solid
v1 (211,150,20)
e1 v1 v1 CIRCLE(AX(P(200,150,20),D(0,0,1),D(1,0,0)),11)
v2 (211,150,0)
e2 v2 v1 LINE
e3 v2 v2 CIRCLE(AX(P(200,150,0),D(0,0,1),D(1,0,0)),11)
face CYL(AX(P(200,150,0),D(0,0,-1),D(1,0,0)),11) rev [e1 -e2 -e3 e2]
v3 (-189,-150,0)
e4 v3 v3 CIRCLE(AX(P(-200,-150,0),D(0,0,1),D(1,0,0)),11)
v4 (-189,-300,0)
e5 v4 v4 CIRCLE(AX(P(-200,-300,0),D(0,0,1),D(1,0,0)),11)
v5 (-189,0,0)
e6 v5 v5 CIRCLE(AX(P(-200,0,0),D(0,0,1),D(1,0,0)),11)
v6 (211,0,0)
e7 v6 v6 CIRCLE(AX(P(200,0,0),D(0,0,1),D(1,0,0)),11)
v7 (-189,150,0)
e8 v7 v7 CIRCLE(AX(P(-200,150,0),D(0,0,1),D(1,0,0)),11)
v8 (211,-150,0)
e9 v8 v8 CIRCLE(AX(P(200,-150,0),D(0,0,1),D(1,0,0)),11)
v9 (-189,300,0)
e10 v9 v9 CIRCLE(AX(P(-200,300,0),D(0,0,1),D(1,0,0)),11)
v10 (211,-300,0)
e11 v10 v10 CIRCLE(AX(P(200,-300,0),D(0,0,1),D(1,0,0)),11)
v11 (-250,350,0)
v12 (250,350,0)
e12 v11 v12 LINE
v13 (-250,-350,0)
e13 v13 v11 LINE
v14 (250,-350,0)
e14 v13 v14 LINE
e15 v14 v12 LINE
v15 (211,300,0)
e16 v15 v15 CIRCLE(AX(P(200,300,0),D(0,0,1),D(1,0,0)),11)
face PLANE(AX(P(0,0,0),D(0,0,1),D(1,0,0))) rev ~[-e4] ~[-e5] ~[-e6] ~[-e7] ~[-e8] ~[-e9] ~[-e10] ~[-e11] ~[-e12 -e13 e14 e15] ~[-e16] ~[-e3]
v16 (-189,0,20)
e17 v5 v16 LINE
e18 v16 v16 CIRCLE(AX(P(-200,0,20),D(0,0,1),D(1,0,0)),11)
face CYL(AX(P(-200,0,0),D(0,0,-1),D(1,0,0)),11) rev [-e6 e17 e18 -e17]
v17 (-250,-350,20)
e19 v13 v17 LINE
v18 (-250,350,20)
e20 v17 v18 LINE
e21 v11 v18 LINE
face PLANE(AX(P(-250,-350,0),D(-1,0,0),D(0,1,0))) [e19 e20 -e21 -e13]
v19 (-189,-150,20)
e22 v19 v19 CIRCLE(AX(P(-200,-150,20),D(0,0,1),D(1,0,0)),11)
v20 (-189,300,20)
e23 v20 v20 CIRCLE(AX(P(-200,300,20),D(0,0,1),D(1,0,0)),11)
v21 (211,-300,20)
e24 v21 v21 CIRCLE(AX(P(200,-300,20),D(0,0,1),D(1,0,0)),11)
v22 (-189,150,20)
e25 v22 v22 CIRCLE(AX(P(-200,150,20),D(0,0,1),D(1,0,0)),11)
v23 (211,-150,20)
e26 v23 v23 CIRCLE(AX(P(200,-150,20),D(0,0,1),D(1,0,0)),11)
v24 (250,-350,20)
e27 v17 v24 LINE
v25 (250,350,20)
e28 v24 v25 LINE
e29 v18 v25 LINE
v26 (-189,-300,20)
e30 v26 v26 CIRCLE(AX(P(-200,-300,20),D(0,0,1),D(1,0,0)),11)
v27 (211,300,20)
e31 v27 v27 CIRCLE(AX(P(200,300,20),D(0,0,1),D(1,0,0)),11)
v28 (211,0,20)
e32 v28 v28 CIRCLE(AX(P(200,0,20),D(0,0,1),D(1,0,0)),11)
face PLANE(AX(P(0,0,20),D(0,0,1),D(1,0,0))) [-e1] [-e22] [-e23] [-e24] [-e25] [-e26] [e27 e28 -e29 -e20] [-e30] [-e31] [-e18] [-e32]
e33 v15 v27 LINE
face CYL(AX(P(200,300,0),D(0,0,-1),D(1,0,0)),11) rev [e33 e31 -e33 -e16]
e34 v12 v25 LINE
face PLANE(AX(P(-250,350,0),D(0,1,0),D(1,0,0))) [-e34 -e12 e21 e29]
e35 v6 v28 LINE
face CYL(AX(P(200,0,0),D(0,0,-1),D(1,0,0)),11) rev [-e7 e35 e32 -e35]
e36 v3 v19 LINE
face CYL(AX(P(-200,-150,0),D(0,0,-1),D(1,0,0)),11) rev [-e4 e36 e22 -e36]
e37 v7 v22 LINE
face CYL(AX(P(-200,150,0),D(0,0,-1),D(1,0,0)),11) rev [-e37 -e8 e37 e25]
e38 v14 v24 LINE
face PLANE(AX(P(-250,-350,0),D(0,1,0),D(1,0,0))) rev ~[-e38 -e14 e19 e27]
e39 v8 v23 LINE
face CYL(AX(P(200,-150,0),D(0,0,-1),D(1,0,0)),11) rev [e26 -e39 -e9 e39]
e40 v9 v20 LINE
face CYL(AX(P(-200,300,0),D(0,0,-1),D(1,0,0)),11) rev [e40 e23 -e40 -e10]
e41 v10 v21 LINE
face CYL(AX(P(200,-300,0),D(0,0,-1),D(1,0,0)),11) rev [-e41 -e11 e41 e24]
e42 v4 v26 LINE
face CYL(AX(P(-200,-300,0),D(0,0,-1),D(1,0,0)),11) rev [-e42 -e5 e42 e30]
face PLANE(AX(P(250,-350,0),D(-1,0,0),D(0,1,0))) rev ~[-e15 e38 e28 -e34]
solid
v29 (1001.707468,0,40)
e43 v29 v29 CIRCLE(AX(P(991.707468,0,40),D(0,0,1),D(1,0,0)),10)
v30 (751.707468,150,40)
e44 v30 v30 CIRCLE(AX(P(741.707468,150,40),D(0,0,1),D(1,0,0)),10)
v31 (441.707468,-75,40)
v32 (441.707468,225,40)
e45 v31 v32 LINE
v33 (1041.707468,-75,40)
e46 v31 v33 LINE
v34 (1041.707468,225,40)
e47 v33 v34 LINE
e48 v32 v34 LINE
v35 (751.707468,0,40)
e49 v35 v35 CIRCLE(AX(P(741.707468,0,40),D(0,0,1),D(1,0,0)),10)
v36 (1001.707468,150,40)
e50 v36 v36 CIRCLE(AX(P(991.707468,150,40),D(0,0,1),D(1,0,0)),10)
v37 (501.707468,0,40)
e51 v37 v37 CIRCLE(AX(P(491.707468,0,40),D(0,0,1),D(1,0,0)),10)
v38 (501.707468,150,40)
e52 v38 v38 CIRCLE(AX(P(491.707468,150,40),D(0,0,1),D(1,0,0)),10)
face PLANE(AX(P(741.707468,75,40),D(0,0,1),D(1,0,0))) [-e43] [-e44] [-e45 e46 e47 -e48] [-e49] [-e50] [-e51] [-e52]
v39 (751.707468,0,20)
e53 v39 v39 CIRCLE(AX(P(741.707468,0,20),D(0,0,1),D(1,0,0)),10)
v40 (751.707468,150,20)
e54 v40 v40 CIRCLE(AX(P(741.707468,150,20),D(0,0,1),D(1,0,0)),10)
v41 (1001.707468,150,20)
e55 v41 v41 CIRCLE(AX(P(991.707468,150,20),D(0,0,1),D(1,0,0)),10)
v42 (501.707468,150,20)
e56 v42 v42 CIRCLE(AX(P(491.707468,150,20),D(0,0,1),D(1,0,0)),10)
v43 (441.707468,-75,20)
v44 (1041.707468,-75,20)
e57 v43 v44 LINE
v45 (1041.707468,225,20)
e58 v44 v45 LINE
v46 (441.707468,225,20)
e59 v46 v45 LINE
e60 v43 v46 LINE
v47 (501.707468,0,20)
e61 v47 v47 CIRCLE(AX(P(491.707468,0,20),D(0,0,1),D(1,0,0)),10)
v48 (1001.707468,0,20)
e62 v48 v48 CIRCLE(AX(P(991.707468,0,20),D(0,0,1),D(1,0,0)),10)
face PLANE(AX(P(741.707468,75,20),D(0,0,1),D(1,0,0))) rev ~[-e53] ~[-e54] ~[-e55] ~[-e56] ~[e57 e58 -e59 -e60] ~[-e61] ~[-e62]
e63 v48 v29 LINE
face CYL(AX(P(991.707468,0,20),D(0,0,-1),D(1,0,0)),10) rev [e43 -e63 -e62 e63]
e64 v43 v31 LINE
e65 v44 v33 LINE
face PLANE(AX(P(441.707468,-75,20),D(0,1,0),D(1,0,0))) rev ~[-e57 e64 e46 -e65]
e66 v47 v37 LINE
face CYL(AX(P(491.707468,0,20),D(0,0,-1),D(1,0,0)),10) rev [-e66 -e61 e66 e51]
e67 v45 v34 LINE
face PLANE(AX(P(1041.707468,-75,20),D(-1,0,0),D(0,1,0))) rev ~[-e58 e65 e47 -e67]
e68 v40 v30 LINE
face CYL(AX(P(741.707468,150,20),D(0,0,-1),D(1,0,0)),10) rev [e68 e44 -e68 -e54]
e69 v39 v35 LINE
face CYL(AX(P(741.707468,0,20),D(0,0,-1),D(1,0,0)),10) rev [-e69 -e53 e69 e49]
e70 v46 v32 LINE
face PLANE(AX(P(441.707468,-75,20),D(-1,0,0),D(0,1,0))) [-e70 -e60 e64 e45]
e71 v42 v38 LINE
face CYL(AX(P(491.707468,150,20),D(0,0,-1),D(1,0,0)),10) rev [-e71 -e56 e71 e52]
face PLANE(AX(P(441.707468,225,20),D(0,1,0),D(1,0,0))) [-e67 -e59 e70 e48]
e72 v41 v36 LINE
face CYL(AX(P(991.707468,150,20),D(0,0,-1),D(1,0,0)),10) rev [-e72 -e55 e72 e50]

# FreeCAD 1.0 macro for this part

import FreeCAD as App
import Part
import Sketcher

V = App.Vector

doc = App.newDocument("Part")
params = doc.addObject("Spreadsheet::Sheet", "Params")
for row, (alias, value) in enumerate([
    ("sketch1_diameter", "22 mm"),
    ("sketch1_width", "500 mm"),
    ("sketch1_height", "700 mm"),
    ("pad1_length", "20 mm"),
    ("sketch2_diameter", "20 mm"),
    ("sketch2_width", "600 mm"),
    ("sketch2_height", "300 mm"),
    ("pad2_length", "20 mm"),
], start=1):
    params.set(f"A{row}", alias)
    params.set(f"B{row}", "=" + value)
    params.setAlias(f"B{row}", alias)

body = doc.addObject("PartDesign::Body", "Body")

sketch1 = doc.addObject("Sketcher::SketchObject", "Sketch")
body.addObject(sketch1)
sketch1.AttachmentSupport = (doc.XY_Plane, [""])
sketch1.MapMode = "FlatFace"
sketch1.addGeometry([
    Part.LineSegment(V(-250, 350, 0), V(-250, -350, 0)),
    Part.LineSegment(V(-250, -350, 0), V(250, -350, 0)),
    Part.LineSegment(V(250, -350, 0), V(250, 350, 0)),
    Part.LineSegment(V(250, 350, 0), V(-250, 350, 0)),
    Part.Circle(V(-200, -300, 0), V(0, 0, 1), 11),
    Part.Circle(V(-200, -150, 0), V(0, 0, 1), 11),
    Part.Circle(V(200, -300, 0), V(0, 0, 1), 11),
    Part.Circle(V(200, -150, 0), V(0, 0, 1), 11),
    Part.Circle(V(-200, 0, 0), V(0, 0, 1), 11),
    Part.Circle(V(-200, 150, 0), V(0, 0, 1), 11),
    Part.Circle(V(-200, 300, 0), V(0, 0, 1), 11),
    Part.Circle(V(200, 0, 0), V(0, 0, 1), 11),
    Part.Circle(V(200, 150, 0), V(0, 0, 1), 11),
    Part.Circle(V(200, 300, 0), V(0, 0, 1), 11),
], False)
sketch1.addConstraint([
    Sketcher.Constraint("Coincident", 0, 2, 1, 1),
    Sketcher.Constraint("Coincident", 1, 2, 2, 1),
    Sketcher.Constraint("Coincident", 2, 2, 3, 1),
    Sketcher.Constraint("Coincident", 3, 2, 0, 1),
    Sketcher.Constraint("Vertical", 0),
    Sketcher.Constraint("Horizontal", 1),
    Sketcher.Constraint("Vertical", 2),
    Sketcher.Constraint("Horizontal", 3),
    Sketcher.Constraint("Equal", 4, 5),
    Sketcher.Constraint("Equal", 5, 6),
    Sketcher.Constraint("Equal", 6, 7),
    Sketcher.Constraint("Equal", 7, 8),
    Sketcher.Constraint("Equal", 8, 9),
    Sketcher.Constraint("Equal", 9, 10),
    Sketcher.Constraint("Equal", 10, 11),
    Sketcher.Constraint("Equal", 11, 12),
    Sketcher.Constraint("Equal", 12, 13),
    Sketcher.Constraint("Symmetric", 7, 3, 9, 3, -1, 1),
    Sketcher.Constraint("Symmetric", 6, 3, 10, 3, -1, 1),
    Sketcher.Constraint("Symmetric", 8, 3, 11, 3, -1, 1),
    Sketcher.Constraint("Symmetric", 5, 3, 12, 3, -1, 1),
    Sketcher.Constraint("Symmetric", 4, 3, 13, 3, -1, 1),
    Sketcher.Constraint("Symmetric", 0, 2, 2, 2, -1, 1),
    Sketcher.Constraint("Symmetric", 4, 3, 6, 3, -2),
    Sketcher.Constraint("Symmetric", 5, 3, 7, 3, -2),
    Sketcher.Constraint("PointOnObject", 8, 3, -1),
    Sketcher.Constraint("Vertical", 4, 3, 5, 3),
    Sketcher.Constraint("Vertical", 5, 3, 8, 3),
    Sketcher.Constraint("Diameter", 4, 22.0),
    Sketcher.Constraint("DistanceX", 1, 1, 1, 2, 500.0),
    Sketcher.Constraint("DistanceY", 0, 2, 0, 1, 700.0),
    Sketcher.Constraint("DistanceX", 4, 3, -1, 1, 200.0),
    Sketcher.Constraint("DistanceY", 4, 3, -1, 1, 300.0),
    Sketcher.Constraint("DistanceY", 5, 3, -1, 1, 150.0),
])
sketch1.setExpression("Constraints[28]", "Params.sketch1_diameter")
sketch1.setExpression("Constraints[29]", "Params.sketch1_width")
sketch1.setExpression("Constraints[30]", "Params.sketch1_height")
pad1 = doc.addObject("PartDesign::Pad", "Pad")
body.addObject(pad1)
pad1.Profile = sketch1
pad1.setExpression("Length", "Params.pad1_length")
body2 = doc.addObject("PartDesign::Body", "Body001")

sketch2 = doc.addObject("Sketcher::SketchObject", "Sketch001")
body2.addObject(sketch2)
sketch2.AttachmentSupport = (doc.getObject("XY_Plane001"), [""])
sketch2.MapMode = "FlatFace"
sketch2.AttachmentOffset = App.Placement(V(0, 0, 20), App.Rotation())
sketch2.addGeometry([
    Part.LineSegment(V(442, 225, 0), V(442, -75, 0)),
    Part.LineSegment(V(442, -75, 0), V(1042, -75, 0)),
    Part.LineSegment(V(1042, -75, 0), V(1042, 225, 0)),
    Part.LineSegment(V(1042, 225, 0), V(442, 225, 0)),
    Part.Circle(V(492, 0, 0), V(0, 0, 1), 10),
    Part.Circle(V(742, 0, 0), V(0, 0, 1), 10),
    Part.Circle(V(992, 0, 0), V(0, 0, 1), 10),
    Part.Circle(V(492, 150, 0), V(0, 0, 1), 10),
    Part.Circle(V(742, 150, 0), V(0, 0, 1), 10),
    Part.Circle(V(992, 150, 0), V(0, 0, 1), 10),
], False)
sketch2.addConstraint([
    Sketcher.Constraint("Coincident", 0, 2, 1, 1),
    Sketcher.Constraint("Coincident", 1, 2, 2, 1),
    Sketcher.Constraint("Coincident", 2, 2, 3, 1),
    Sketcher.Constraint("Coincident", 3, 2, 0, 1),
    Sketcher.Constraint("Vertical", 0),
    Sketcher.Constraint("Horizontal", 1),
    Sketcher.Constraint("Vertical", 2),
    Sketcher.Constraint("Horizontal", 3),
    Sketcher.Constraint("Equal", 4, 5),
    Sketcher.Constraint("Equal", 5, 6),
    Sketcher.Constraint("Equal", 6, 7),
    Sketcher.Constraint("Equal", 7, 8),
    Sketcher.Constraint("Equal", 8, 9),
    Sketcher.Constraint("PointOnObject", 4, 3, -1),
    Sketcher.Constraint("PointOnObject", 5, 3, -1),
    Sketcher.Constraint("PointOnObject", 6, 3, -1),
    Sketcher.Constraint("Horizontal", 7, 3, 8, 3),
    Sketcher.Constraint("Horizontal", 8, 3, 9, 3),
    Sketcher.Constraint("Vertical", 4, 3, 7, 3),
    Sketcher.Constraint("Vertical", 5, 3, 8, 3),
    Sketcher.Constraint("Vertical", 6, 3, 9, 3),
    Sketcher.Constraint("Diameter", 4, 20.0),
    Sketcher.Constraint("DistanceX", 1, 1, 1, 2, 600.0),
    Sketcher.Constraint("DistanceY", 0, 2, 0, 1, 300.0),
    Sketcher.Constraint("DistanceY", -1, 1, 7, 3, 150.0),
    Sketcher.Constraint("DistanceY", 0, 2, -1, 1, 75.0),
    Sketcher.Constraint("DistanceX", 4, 3, 5, 3, 250.0),
    Sketcher.Constraint("DistanceX", 5, 3, 6, 3, 250.0),
    Sketcher.Constraint("DistanceX", 0, 2, 4, 3, 50.0),
    Sketcher.Constraint("DistanceX", -1, 1, 4, 3, 491.707468),
])
sketch2.setExpression("Constraints[21]", "Params.sketch2_diameter")
sketch2.setExpression("Constraints[22]", "Params.sketch2_width")
sketch2.setExpression("Constraints[23]", "Params.sketch2_height")
pad2 = doc.addObject("PartDesign::Pad", "Pad001")
body2.addObject(pad2)
pad2.Profile = sketch2
pad2.setExpression("Length", "Params.pad2_length")

doc.recompute()
